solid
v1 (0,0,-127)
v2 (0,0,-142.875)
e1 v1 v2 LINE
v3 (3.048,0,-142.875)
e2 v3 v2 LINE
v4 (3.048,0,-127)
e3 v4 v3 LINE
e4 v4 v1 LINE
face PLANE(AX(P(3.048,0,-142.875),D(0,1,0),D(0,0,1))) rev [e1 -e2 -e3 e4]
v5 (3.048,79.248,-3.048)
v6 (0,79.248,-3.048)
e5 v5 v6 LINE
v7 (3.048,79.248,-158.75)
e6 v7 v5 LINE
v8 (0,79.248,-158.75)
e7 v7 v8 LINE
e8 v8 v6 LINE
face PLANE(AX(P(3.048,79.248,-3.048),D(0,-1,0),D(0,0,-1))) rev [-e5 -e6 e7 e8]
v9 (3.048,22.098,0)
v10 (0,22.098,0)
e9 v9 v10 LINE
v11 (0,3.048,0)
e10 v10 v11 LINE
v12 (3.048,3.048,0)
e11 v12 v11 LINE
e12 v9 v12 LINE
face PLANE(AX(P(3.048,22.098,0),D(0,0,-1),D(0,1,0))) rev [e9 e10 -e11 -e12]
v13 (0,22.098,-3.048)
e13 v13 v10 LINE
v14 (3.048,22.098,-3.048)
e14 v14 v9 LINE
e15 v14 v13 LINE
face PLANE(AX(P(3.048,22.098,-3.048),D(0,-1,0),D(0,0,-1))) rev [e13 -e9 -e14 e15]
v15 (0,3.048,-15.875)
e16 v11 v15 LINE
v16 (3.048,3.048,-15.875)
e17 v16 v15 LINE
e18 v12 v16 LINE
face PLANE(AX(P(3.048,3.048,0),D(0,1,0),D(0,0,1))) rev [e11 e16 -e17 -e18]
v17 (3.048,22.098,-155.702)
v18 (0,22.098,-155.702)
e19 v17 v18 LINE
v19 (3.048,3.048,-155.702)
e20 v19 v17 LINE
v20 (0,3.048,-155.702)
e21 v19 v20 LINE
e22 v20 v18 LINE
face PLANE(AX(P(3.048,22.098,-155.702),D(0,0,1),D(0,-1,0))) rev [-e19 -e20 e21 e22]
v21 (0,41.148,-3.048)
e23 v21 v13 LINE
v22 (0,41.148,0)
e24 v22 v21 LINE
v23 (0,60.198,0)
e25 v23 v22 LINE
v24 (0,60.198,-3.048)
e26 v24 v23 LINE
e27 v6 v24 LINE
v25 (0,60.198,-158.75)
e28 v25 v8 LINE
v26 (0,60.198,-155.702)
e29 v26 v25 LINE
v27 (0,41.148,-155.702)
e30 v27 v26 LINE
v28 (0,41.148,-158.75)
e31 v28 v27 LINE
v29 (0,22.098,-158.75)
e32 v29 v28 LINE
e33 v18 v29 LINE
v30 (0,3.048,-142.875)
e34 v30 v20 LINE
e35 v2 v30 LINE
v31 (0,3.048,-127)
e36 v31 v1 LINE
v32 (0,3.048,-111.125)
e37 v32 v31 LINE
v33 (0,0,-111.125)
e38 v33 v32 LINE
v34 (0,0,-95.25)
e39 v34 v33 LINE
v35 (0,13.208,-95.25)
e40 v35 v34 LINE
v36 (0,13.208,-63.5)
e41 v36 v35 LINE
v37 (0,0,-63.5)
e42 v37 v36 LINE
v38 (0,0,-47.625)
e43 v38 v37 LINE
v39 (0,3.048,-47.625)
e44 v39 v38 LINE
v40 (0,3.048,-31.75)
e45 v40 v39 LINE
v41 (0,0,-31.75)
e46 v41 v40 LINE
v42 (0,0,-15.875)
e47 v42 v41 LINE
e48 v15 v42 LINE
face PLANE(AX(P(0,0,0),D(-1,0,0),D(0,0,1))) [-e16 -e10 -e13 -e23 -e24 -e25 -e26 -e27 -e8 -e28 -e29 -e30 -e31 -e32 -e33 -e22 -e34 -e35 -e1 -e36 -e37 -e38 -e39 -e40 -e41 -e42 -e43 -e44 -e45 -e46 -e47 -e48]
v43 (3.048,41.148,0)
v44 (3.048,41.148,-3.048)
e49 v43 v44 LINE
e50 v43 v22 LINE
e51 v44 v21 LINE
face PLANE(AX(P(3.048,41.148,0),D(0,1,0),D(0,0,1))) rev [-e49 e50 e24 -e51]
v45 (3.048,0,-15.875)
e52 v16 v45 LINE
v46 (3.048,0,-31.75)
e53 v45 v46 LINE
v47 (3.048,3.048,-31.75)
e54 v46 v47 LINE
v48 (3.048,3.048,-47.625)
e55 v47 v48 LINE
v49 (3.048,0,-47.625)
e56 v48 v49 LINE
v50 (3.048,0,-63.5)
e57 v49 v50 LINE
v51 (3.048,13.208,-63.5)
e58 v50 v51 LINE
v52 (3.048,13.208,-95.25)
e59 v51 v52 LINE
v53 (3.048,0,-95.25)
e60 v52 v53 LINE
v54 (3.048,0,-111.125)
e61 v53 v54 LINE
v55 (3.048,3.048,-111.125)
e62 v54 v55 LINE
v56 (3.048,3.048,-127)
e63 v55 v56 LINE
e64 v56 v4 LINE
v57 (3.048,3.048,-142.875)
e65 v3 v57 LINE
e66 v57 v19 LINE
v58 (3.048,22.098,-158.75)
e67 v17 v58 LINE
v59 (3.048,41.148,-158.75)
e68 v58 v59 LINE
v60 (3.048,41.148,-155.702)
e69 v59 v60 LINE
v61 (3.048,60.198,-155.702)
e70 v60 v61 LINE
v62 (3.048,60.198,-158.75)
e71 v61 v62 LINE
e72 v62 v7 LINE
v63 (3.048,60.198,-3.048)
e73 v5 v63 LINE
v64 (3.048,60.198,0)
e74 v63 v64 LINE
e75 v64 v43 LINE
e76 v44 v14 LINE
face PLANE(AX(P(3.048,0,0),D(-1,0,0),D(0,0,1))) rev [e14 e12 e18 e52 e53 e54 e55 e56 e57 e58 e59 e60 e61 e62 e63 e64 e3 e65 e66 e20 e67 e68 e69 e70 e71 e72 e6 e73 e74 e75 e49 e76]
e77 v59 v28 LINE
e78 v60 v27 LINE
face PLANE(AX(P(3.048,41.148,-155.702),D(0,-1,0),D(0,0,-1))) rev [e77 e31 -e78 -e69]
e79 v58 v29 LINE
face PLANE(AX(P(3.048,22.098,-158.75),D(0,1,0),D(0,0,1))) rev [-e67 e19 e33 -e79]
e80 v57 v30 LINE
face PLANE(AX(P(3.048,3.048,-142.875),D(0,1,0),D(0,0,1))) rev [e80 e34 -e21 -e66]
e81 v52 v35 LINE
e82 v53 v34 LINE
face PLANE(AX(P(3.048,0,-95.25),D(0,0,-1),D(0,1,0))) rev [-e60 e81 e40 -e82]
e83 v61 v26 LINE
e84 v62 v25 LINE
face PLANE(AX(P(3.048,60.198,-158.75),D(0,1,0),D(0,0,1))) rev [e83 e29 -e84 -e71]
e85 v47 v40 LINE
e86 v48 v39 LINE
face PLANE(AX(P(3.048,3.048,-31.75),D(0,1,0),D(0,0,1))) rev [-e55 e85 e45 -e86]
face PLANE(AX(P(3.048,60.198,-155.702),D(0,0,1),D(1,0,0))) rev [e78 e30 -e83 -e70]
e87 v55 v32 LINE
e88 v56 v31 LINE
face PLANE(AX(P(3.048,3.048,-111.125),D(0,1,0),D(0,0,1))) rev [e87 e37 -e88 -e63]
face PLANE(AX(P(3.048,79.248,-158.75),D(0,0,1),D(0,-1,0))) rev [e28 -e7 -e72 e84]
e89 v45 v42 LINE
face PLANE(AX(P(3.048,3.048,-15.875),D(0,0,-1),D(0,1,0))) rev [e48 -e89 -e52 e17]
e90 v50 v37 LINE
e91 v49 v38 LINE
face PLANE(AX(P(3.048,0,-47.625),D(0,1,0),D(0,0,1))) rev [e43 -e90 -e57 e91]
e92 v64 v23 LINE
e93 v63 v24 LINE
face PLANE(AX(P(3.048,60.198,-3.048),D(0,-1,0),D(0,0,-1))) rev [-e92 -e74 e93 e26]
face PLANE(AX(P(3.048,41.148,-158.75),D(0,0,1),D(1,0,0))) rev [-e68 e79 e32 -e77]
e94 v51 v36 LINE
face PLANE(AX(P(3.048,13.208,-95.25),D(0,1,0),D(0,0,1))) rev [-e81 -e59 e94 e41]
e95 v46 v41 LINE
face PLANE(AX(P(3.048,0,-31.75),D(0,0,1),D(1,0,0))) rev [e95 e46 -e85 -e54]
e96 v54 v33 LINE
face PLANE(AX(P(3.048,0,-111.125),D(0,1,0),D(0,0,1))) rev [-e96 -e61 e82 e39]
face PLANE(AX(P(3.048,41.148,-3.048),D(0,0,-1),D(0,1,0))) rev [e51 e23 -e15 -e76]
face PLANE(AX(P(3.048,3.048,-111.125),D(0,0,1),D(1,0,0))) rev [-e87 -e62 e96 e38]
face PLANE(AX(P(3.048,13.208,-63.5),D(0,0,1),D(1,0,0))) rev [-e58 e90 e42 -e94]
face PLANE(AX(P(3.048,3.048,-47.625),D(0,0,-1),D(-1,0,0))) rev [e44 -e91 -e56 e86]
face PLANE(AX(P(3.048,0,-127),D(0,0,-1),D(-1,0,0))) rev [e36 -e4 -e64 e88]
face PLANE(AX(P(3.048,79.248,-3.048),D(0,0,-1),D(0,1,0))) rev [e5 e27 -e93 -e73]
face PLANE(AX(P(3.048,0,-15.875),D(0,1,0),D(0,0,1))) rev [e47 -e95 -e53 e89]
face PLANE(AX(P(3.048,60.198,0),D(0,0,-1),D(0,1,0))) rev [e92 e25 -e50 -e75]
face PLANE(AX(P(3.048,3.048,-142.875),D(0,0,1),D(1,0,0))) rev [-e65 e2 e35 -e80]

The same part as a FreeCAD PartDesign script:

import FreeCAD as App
import Part
import Sketcher

V = App.Vector
Q = App.Units.Quantity

doc = App.newDocument("Part")
body = doc.addObject("PartDesign::Body", "Body")

sketch1 = body.newObject("Sketcher::SketchObject", "Sketch")
sketch1.AttachmentSupport = (doc.getObject("YZ_Plane"), [""])
sketch1.MapMode = "FlatFace"
sketch1.addGeometry([
    Part.LineSegment(V(3, -15.9, 0), V(0, -15.9, 0)),
    Part.LineSegment(V(0, -15.9, 0), V(0, -31.8, 0)),
    Part.LineSegment(V(0, -31.8, 0), V(3, -31.8, 0)),
    Part.LineSegment(V(3, -31.8, 0), V(3, -47.6, 0)),
    Part.LineSegment(V(3, -47.6, 0), V(0, -47.6, 0)),
    Part.LineSegment(V(0, -47.6, 0), V(0, -63.5, 0)),
    Part.LineSegment(V(0, -63.5, 0), V(13.2, -63.5, 0)),
    Part.LineSegment(V(13.2, -63.5, 0), V(13.2, -95.2, 0)),
    Part.LineSegment(V(13.2, -95.2, 0), V(0, -95.2, 0)),
    Part.LineSegment(V(0, -95.2, 0), V(0, -111.1, 0)),
    Part.LineSegment(V(0, -111.1, 0), V(3, -111.1, 0)),
    Part.LineSegment(V(3, -111.1, 0), V(3, -127, 0)),
    Part.LineSegment(V(3, -127, 0), V(0, -127, 0)),
    Part.LineSegment(V(0, -127, 0), V(0, -142.9, 0)),
    Part.LineSegment(V(0, -142.9, 0), V(3, -142.9, 0)),
    Part.LineSegment(V(3, -142.9, 0), V(3, -155.7, 0)),
    Part.LineSegment(V(3, -155.7, 0), V(22.1, -155.7, 0)),
    Part.LineSegment(V(22.1, -155.7, 0), V(22.1, -158.8, 0)),
    Part.LineSegment(V(22.1, -158.8, 0), V(41.1, -158.8, 0)),
    Part.LineSegment(V(41.1, -158.8, 0), V(41.1, -155.7, 0)),
    Part.LineSegment(V(41.1, -155.7, 0), V(60.2, -155.7, 0)),
    Part.LineSegment(V(60.2, -155.7, 0), V(60.2, -158.8, 0)),
    Part.LineSegment(V(60.2, -158.8, 0), V(79.2, -158.8, 0)),
    Part.LineSegment(V(79.2, -158.8, 0), V(79.2, -3, 0)),
    Part.LineSegment(V(79.2, -3, 0), V(60.2, -3, 0)),
    Part.LineSegment(V(60.2, -3, 0), V(60.2, 0, 0)),
    Part.LineSegment(V(60.2, 0, 0), V(41.1, 0, 0)),
    Part.LineSegment(V(41.1, 0, 0), V(41.1, -3, 0)),
    Part.LineSegment(V(41.1, -3, 0), V(22.1, -3, 0)),
    Part.LineSegment(V(22.1, -3, 0), V(22.1, 0, 0)),
    Part.LineSegment(V(22.1, 0, 0), V(3, 0, 0)),
    Part.LineSegment(V(3, 0, 0), V(3, -15.9, 0)),
], False)
sketch1.addConstraint([
    Sketcher.Constraint("Coincident", 0, 2, 1, 1),
    Sketcher.Constraint("Coincident", 1, 2, 2, 1),
    Sketcher.Constraint("Coincident", 2, 2, 3, 1),
    Sketcher.Constraint("Coincident", 3, 2, 4, 1),
    Sketcher.Constraint("Coincident", 4, 2, 5, 1),
    Sketcher.Constraint("Coincident", 5, 2, 6, 1),
    Sketcher.Constraint("Coincident", 6, 2, 7, 1),
    Sketcher.Constraint("Coincident", 7, 2, 8, 1),
    Sketcher.Constraint("Coincident", 8, 2, 9, 1),
    Sketcher.Constraint("Coincident", 9, 2, 10, 1),
    Sketcher.Constraint("Coincident", 10, 2, 11, 1),
    Sketcher.Constraint("Coincident", 11, 2, 12, 1),
    Sketcher.Constraint("Coincident", 12, 2, 13, 1),
    Sketcher.Constraint("Coincident", 13, 2, 14, 1),
    Sketcher.Constraint("Coincident", 14, 2, 15, 1),
    Sketcher.Constraint("Coincident", 15, 2, 16, 1),
    Sketcher.Constraint("Coincident", 16, 2, 17, 1),
    Sketcher.Constraint("Coincident", 17, 2, 18, 1),
    Sketcher.Constraint("Coincident", 18, 2, 19, 1),
    Sketcher.Constraint("Coincident", 19, 2, 20, 1),
    Sketcher.Constraint("Coincident", 20, 2, 21, 1),
    Sketcher.Constraint("Coincident", 21, 2, 22, 1),
    Sketcher.Constraint("Coincident", 22, 2, 23, 1),
    Sketcher.Constraint("Coincident", 23, 2, 24, 1),
    Sketcher.Constraint("Coincident", 24, 2, 25, 1),
    Sketcher.Constraint("Coincident", 25, 2, 26, 1),
    Sketcher.Constraint("Coincident", 26, 2, 27, 1),
    Sketcher.Constraint("Coincident", 27, 2, 28, 1),
    Sketcher.Constraint("Coincident", 28, 2, 29, 1),
    Sketcher.Constraint("Coincident", 29, 2, 30, 1),
    Sketcher.Constraint("Coincident", 30, 2, 31, 1),
    Sketcher.Constraint("Coincident", 31, 2, 0, 1),
    Sketcher.Constraint("Horizontal", 0),
    Sketcher.Constraint("Vertical", 1),
    Sketcher.Constraint("Horizontal", 2),
    Sketcher.Constraint("Vertical", 3),
    Sketcher.Constraint("Horizontal", 4),
    Sketcher.Constraint("Vertical", 5),
    Sketcher.Constraint("Horizontal", 6),
    Sketcher.Constraint("Vertical", 7),
    Sketcher.Constraint("Horizontal", 8),
    Sketcher.Constraint("Vertical", 9),
    Sketcher.Constraint("Horizontal", 10),
    Sketcher.Constraint("Vertical", 11),
    Sketcher.Constraint("Horizontal", 12),
    Sketcher.Constraint("Vertical", 13),
    Sketcher.Constraint("Horizontal", 14),
    Sketcher.Constraint("Vertical", 15),
    Sketcher.Constraint("Horizontal", 16),
    Sketcher.Constraint("Vertical", 17),
    Sketcher.Constraint("Horizontal", 18),
    Sketcher.Constraint("Vertical", 19),
    Sketcher.Constraint("Horizontal", 20),
    Sketcher.Constraint("Vertical", 21),
    Sketcher.Constraint("Horizontal", 22),
    Sketcher.Constraint("Vertical", 23),
    Sketcher.Constraint("Horizontal", 24),
    Sketcher.Constraint("Vertical", 25),
    Sketcher.Constraint("Horizontal", 26),
    Sketcher.Constraint("Vertical", 27),
    Sketcher.Constraint("Horizontal", 28),
    Sketcher.Constraint("Vertical", 29),
    Sketcher.Constraint("Horizontal", 30),
    Sketcher.Constraint("Vertical", 31),
    Sketcher.Constraint("PointOnObject", 0, 2, -2),
    Sketcher.Constraint("PointOnObject", 4, 2, -2),
    Sketcher.Constraint("PointOnObject", 8, 2, -2),
    Sketcher.Constraint("PointOnObject", 12, 2, -2),
    Sketcher.Constraint("PointOnObject", 25, 2, -1),
    Sketcher.Constraint("PointOnObject", 29, 2, -1),
    Sketcher.Constraint("Horizontal", 16, 2, 19, 2),
    Sketcher.Constraint("Horizontal", 18, 2, 21, 2),
    Sketcher.Constraint("Horizontal", 24, 2, 27, 2),
    Sketcher.Constraint("Vertical", 3, 2, 10, 2),
    Sketcher.Constraint("Vertical", 11, 2, 14, 2),
    Sketcher.Constraint("Vertical", 21, 2, 24, 2),
    Sketcher.Constraint("Vertical", 19, 2, 26, 2),
    Sketcher.Constraint("Vertical", 17, 2, 28, 2),
    Sketcher.Constraint("Vertical", 15, 2, 30, 2),
    Sketcher.Constraint("Equal", 16, 18),
    Sketcher.Constraint("Equal", 18, 20),
    Sketcher.Constraint("Equal", 20, 22),
    Sketcher.Constraint("Equal", 1, 3),
    Sketcher.Constraint("Equal", 3, 5),
    Sketcher.Constraint("Equal", 5, 9),
    Sketcher.Constraint("Equal", 9, 11),
    Sketcher.Constraint("Equal", 11, 13),
    Sketcher.Constraint("Equal", 14, 17),
    Sketcher.Constraint("Equal", 21, 25),
    Sketcher.Constraint("Equal", 13, 31),
    Sketcher.Constraint("DistanceY", 11, 2, -1, 1, Q("5 in")),
    Sketcher.Constraint("DistanceX", 2, 2, 23, 2, Q("3 in")),
    Sketcher.Constraint("DistanceX", 0, 2, 0, 1, Q("0.12 in")),
    Sketcher.Constraint("DistanceX", 6, 1, 6, 2, Q("0.52 in")),
    Sketcher.Constraint("DistanceY", 7, 2, 7, 1, Q("1.25 in")),
    Sketcher.Constraint("DistanceY", 23, 1, 23, 2, Q("6.13 in")),
])
pad1 = body.newObject("PartDesign::Pad", "Pad")
pad1.Profile = sketch1
pad1.Length = Q("0.12 in")

doc.recompute()
